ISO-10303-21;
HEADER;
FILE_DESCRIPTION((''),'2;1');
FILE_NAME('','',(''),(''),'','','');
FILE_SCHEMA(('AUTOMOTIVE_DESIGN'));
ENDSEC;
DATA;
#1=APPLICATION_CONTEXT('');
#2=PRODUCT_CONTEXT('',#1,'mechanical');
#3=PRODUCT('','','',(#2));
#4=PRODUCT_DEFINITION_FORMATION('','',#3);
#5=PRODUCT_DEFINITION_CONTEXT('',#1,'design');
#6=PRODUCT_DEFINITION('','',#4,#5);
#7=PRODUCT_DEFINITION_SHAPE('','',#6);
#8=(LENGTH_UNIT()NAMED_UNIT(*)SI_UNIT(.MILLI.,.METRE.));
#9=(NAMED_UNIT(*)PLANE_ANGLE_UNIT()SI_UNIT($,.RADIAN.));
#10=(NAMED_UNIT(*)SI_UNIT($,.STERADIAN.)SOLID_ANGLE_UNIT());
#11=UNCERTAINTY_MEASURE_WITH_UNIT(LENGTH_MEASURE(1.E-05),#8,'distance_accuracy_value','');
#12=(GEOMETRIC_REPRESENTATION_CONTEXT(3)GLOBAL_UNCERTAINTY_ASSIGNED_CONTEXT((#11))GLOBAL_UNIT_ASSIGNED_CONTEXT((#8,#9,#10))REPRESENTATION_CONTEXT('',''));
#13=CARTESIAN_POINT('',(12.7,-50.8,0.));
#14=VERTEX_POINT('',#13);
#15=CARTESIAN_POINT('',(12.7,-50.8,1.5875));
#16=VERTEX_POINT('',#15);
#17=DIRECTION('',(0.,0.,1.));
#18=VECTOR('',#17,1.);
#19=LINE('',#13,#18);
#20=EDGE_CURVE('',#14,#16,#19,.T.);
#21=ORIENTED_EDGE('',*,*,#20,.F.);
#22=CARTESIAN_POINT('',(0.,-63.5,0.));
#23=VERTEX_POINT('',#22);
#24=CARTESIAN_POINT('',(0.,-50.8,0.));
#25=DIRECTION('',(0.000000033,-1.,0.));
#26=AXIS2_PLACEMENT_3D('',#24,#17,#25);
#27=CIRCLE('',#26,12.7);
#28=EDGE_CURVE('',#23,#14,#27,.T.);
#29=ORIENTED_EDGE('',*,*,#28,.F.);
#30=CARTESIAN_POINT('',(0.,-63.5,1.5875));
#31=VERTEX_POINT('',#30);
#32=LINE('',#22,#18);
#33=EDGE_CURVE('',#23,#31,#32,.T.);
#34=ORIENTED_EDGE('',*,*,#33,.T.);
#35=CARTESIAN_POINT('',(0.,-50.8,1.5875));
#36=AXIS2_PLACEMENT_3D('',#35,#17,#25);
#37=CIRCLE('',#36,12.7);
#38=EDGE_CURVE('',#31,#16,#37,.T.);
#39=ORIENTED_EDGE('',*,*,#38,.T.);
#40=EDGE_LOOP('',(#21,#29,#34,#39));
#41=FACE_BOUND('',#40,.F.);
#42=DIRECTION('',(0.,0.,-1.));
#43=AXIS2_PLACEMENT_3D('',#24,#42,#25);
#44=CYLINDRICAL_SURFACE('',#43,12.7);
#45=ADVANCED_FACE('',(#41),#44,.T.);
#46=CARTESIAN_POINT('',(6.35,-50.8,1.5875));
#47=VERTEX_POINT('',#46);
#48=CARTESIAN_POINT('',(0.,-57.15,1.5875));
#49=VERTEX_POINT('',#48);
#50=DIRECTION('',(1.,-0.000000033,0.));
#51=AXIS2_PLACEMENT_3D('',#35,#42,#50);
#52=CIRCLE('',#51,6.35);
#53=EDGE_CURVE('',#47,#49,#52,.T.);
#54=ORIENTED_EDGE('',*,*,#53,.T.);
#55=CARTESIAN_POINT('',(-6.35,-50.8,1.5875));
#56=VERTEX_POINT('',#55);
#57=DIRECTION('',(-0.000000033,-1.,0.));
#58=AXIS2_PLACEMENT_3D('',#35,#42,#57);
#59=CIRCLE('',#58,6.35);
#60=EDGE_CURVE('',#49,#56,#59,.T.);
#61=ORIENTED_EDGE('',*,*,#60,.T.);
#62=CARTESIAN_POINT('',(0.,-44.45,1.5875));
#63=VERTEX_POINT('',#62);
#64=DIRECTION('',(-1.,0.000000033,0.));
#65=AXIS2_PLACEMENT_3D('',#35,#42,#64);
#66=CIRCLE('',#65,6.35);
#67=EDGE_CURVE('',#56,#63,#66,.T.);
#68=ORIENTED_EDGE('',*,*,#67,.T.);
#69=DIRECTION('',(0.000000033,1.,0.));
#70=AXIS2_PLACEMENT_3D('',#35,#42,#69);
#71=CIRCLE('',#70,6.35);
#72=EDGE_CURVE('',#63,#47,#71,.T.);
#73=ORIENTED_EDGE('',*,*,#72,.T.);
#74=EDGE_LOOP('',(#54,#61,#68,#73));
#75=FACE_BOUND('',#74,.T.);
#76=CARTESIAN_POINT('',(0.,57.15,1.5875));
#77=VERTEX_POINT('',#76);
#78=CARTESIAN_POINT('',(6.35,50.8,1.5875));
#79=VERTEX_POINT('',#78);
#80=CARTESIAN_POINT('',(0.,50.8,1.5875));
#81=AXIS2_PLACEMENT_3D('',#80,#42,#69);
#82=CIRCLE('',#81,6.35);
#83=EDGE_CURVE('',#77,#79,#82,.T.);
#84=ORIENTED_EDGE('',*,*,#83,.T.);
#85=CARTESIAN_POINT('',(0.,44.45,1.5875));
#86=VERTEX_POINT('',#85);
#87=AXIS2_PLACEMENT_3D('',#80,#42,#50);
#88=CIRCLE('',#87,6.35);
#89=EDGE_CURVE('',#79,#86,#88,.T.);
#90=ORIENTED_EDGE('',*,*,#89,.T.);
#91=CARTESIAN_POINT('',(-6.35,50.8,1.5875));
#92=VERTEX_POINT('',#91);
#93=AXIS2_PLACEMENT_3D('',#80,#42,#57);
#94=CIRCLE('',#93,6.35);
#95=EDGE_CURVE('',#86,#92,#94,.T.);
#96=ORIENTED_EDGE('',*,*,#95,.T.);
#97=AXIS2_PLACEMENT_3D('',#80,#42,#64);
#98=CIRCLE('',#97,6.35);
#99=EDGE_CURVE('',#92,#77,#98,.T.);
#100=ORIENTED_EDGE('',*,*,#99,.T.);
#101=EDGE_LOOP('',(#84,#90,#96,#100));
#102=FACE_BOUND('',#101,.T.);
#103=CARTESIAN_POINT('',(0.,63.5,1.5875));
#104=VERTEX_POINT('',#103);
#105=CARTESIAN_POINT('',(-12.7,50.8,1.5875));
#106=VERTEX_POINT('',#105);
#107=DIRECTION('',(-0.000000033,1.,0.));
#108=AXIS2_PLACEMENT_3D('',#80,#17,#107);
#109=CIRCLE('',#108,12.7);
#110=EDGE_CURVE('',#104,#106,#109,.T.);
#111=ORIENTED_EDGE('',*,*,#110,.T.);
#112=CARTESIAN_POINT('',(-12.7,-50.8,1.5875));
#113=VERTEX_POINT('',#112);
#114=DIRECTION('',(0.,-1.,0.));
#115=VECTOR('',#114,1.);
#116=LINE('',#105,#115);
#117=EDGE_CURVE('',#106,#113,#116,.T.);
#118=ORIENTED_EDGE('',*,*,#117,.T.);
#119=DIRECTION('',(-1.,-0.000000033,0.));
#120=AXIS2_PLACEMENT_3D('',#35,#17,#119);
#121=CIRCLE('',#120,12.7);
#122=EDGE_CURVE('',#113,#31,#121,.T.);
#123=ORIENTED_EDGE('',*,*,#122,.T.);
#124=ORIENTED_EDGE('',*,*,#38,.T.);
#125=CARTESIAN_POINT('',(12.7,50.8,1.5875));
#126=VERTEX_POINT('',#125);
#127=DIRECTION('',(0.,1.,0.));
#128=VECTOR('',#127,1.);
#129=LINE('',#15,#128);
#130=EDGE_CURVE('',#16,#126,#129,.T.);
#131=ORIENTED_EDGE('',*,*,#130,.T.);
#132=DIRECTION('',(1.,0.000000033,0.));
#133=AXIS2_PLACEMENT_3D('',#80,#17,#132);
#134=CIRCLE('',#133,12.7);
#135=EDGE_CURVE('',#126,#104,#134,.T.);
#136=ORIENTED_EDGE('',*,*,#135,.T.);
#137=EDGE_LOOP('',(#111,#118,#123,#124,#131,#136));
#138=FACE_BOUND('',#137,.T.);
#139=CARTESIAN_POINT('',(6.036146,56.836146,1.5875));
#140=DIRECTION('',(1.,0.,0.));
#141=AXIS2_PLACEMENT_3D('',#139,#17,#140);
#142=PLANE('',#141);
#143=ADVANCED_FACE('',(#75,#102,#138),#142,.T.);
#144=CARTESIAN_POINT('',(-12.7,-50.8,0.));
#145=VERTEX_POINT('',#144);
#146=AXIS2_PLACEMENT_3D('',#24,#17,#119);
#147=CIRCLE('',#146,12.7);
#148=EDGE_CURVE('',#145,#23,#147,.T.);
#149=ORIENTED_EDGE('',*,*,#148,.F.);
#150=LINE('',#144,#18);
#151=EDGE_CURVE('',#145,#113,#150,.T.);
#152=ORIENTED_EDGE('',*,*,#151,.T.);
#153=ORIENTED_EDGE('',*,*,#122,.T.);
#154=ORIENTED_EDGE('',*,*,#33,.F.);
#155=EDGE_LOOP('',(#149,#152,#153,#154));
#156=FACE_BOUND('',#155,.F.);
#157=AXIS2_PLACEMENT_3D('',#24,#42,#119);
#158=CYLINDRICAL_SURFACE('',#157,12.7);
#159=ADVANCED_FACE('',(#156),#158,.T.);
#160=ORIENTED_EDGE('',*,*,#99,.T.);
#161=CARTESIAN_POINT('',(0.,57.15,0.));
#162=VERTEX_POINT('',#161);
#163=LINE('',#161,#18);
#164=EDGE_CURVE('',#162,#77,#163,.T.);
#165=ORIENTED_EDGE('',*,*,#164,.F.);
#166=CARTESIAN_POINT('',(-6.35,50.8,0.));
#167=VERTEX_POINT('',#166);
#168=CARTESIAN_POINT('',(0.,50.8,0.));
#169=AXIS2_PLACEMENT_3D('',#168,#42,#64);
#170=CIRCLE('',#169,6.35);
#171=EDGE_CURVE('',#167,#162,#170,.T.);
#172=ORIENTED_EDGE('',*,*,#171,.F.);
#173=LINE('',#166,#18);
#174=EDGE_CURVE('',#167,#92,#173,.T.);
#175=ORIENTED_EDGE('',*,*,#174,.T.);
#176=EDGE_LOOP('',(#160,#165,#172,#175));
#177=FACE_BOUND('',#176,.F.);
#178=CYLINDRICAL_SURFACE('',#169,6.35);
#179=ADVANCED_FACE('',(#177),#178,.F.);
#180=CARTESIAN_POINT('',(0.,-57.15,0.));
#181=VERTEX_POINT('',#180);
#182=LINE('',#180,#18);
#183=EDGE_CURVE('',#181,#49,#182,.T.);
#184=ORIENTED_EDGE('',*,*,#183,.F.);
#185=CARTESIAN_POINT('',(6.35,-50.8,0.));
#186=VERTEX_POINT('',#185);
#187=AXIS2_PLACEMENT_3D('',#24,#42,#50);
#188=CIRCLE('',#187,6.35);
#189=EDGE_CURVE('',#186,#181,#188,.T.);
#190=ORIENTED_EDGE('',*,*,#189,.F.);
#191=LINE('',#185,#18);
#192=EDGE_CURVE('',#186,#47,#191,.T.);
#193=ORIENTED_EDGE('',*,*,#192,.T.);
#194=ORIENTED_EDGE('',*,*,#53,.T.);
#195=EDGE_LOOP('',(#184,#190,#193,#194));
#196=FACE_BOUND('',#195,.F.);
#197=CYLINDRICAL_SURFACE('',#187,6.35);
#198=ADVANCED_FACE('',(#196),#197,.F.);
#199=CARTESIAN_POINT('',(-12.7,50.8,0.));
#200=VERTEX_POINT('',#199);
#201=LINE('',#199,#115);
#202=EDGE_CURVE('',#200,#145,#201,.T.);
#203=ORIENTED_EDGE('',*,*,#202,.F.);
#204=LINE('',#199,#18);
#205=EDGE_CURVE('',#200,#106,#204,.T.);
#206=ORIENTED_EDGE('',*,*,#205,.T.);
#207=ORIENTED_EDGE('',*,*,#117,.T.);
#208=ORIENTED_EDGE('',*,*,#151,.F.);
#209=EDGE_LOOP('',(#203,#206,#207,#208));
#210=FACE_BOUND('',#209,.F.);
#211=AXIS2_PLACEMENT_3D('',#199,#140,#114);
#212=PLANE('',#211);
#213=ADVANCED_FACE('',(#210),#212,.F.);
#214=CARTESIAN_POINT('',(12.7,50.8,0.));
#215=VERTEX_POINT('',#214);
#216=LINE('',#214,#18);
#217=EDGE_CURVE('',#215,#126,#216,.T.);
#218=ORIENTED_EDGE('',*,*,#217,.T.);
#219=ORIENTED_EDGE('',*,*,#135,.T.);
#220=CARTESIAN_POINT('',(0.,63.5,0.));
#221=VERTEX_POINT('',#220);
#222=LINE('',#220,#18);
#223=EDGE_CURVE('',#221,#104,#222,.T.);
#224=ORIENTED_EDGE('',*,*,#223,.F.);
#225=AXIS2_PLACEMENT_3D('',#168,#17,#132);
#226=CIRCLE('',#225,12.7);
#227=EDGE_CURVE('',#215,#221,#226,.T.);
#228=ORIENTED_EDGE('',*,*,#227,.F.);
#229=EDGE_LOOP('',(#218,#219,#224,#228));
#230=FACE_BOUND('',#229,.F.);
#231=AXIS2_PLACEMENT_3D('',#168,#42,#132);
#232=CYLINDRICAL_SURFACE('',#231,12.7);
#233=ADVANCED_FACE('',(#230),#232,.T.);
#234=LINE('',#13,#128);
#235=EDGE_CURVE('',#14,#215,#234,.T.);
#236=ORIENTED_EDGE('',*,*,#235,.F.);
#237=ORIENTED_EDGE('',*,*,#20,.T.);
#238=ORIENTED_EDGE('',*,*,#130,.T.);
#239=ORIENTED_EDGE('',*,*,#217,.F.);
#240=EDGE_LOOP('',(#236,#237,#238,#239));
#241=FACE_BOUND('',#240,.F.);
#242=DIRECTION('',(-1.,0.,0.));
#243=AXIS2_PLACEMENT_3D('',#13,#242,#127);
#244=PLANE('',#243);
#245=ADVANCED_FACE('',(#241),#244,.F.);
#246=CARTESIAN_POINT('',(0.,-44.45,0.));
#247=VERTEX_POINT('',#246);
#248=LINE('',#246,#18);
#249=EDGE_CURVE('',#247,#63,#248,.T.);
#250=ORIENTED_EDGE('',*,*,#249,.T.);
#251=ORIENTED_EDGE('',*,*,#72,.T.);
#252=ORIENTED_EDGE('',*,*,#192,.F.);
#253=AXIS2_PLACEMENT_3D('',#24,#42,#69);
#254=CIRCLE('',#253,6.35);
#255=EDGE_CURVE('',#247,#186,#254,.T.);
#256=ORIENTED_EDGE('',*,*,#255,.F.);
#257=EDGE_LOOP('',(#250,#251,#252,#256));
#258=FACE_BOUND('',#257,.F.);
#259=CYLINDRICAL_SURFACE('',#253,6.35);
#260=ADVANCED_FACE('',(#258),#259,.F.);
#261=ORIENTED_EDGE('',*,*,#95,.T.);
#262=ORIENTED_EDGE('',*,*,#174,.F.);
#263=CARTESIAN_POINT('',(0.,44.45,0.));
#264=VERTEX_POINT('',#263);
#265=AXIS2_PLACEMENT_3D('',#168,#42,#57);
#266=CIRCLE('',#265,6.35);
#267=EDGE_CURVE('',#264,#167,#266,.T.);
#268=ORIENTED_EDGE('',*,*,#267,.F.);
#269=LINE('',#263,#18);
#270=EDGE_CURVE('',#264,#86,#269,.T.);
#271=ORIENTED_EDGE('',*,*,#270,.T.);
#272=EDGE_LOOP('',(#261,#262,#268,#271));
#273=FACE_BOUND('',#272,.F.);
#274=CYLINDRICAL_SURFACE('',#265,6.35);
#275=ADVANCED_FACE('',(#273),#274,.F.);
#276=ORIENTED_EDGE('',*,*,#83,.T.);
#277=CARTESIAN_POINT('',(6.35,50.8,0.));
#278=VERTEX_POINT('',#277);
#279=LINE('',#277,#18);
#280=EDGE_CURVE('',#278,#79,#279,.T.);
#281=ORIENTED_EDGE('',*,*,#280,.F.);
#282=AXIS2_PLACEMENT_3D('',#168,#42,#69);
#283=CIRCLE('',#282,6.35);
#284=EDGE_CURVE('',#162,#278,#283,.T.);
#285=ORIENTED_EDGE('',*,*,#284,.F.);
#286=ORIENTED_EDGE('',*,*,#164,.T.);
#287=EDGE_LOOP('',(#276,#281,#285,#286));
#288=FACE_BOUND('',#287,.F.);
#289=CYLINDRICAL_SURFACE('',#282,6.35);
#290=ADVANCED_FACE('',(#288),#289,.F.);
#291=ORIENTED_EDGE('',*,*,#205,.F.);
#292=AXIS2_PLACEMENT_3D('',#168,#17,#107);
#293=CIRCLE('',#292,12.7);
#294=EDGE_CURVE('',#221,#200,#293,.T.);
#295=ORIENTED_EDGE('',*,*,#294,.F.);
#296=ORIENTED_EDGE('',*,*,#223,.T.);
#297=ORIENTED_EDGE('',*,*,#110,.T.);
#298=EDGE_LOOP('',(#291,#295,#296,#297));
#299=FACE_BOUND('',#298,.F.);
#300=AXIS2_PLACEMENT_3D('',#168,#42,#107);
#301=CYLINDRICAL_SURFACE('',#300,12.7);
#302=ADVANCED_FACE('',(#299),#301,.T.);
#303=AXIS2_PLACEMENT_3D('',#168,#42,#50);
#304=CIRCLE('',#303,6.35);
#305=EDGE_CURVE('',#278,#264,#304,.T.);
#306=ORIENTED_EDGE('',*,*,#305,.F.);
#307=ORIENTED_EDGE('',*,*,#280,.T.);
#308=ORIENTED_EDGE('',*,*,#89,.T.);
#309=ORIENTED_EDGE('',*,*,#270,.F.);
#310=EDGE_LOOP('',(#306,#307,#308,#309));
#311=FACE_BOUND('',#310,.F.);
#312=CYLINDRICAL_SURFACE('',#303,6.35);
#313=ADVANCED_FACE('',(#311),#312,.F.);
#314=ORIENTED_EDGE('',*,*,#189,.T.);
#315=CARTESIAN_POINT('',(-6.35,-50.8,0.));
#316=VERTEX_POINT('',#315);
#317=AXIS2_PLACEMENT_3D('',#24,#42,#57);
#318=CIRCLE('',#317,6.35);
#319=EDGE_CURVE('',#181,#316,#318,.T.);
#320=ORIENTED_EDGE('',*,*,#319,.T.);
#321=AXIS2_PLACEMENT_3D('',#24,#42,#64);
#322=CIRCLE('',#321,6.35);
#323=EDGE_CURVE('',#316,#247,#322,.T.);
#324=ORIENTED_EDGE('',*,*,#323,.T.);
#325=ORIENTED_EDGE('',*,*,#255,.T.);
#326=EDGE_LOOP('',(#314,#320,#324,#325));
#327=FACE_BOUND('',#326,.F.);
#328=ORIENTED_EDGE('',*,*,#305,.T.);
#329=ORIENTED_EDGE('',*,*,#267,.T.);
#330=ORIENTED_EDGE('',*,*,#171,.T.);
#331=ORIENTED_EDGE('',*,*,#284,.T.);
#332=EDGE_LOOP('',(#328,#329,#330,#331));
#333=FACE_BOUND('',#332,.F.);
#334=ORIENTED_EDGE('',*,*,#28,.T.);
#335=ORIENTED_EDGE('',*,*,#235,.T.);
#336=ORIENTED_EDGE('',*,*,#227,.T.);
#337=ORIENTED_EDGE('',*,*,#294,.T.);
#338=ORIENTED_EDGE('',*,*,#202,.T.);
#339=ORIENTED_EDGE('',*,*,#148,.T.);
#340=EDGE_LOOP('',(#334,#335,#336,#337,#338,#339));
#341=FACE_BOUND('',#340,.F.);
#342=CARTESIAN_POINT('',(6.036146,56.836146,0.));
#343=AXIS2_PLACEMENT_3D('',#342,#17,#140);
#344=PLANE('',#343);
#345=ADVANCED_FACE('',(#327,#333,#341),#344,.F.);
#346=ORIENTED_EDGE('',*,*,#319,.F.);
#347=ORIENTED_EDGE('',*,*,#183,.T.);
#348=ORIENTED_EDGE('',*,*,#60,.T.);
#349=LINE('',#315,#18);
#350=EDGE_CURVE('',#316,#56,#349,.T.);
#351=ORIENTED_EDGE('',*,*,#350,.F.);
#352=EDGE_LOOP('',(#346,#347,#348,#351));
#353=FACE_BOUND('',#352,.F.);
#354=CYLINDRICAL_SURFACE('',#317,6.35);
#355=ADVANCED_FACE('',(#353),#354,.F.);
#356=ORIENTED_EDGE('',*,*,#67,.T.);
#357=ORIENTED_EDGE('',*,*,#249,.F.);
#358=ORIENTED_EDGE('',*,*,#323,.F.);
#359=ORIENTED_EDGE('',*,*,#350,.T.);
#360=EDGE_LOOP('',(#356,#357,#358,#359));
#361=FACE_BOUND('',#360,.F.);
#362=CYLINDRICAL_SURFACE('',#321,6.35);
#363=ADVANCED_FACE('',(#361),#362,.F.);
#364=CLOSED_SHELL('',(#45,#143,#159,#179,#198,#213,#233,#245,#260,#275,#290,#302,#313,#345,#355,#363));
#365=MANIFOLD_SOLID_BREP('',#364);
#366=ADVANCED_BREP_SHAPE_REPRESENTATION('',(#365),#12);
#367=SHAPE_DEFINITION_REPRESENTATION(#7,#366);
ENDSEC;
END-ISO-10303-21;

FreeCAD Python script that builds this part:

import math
import FreeCAD as App
import Part
import Sketcher
from FreeCAD import Vector
Q = App.Units.Quantity

doc = App.newDocument("Part")
body = doc.addObject("PartDesign::Body", "Body")

# Sketch on XY plane
sketch1 = body.newObject("Sketcher::SketchObject", "Sketch")
sketch1.AttachmentSupport = (doc.getObject("XY_Plane"), [""])
sketch1.MapMode = "FlatFace"
sketch1.addGeometry(Part.ArcOfCircle(Part.Circle(Vector(0, -51, 0), Vector(0, 0, 1), 13), math.radians(-90), math.radians(0)), False)
sketch1.addGeometry(Part.LineSegment(Vector(13, -51, 0), Vector(13, 51, 0)), False)
sketch1.addGeometry(Part.ArcOfCircle(Part.Circle(Vector(0, 51, 0), Vector(0, 0, 1), 13), math.radians(0), math.radians(90)), False)
sketch1.addGeometry(Part.ArcOfCircle(Part.Circle(Vector(0, 51, 0), Vector(0, 0, 1), 13), math.radians(90), math.radians(180)), False)
sketch1.addGeometry(Part.LineSegment(Vector(-13, 51, 0), Vector(-13, -51, 0)), False)
sketch1.addGeometry(Part.ArcOfCircle(Part.Circle(Vector(0, -51, 0), Vector(0, 0, 1), 13), math.radians(-180), math.radians(-90)), False)
sketch1.addGeometry(Part.ArcOfCircle(Part.Circle(Vector(0, 51, 0), Vector(0, 0, 1), 6), math.radians(0), math.radians(90)), False)
sketch1.addGeometry(Part.ArcOfCircle(Part.Circle(Vector(0, 51, 0), Vector(0, 0, 1), 6), math.radians(-90), math.radians(0)), False)
sketch1.addGeometry(Part.ArcOfCircle(Part.Circle(Vector(0, 51, 0), Vector(0, 0, 1), 6), math.radians(-180), math.radians(-90)), False)
sketch1.addGeometry(Part.ArcOfCircle(Part.Circle(Vector(0, 51, 0), Vector(0, 0, 1), 6), math.radians(90), math.radians(180)), False)
sketch1.addGeometry(Part.ArcOfCircle(Part.Circle(Vector(0, -51, 0), Vector(0, 0, 1), 6), math.radians(0), math.radians(90)), False)
sketch1.addGeometry(Part.ArcOfCircle(Part.Circle(Vector(0, -51, 0), Vector(0, 0, 1), 6), math.radians(-90), math.radians(0)), False)
sketch1.addGeometry(Part.ArcOfCircle(Part.Circle(Vector(0, -51, 0), Vector(0, 0, 1), 6), math.radians(-180), math.radians(-90)), False)
sketch1.addGeometry(Part.ArcOfCircle(Part.Circle(Vector(0, -51, 0), Vector(0, 0, 1), 6), math.radians(90), math.radians(180)), False)
sketch1.addConstraint(Sketcher.Constraint("Tangent", 0, 2, 1, 1))
sketch1.addConstraint(Sketcher.Constraint("Tangent", 1, 2, 2, 1))
sketch1.addConstraint(Sketcher.Constraint("Tangent", 2, 2, 3, 1))
sketch1.addConstraint(Sketcher.Constraint("Tangent", 3, 2, 4, 1))
sketch1.addConstraint(Sketcher.Constraint("Tangent", 4, 2, 5, 1))
sketch1.addConstraint(Sketcher.Constraint("Tangent", 5, 2, 0, 1))
sketch1.addConstraint(Sketcher.Constraint("Tangent", 6, 1, 7, 2))
sketch1.addConstraint(Sketcher.Constraint("Tangent", 7, 1, 8, 2))
sketch1.addConstraint(Sketcher.Constraint("Tangent", 8, 1, 9, 2))
sketch1.addConstraint(Sketcher.Constraint("Tangent", 9, 1, 6, 2))
sketch1.addConstraint(Sketcher.Constraint("Tangent", 10, 1, 11, 2))
sketch1.addConstraint(Sketcher.Constraint("Tangent", 11, 1, 12, 2))
sketch1.addConstraint(Sketcher.Constraint("Tangent", 12, 1, 13, 2))
sketch1.addConstraint(Sketcher.Constraint("Tangent", 13, 1, 10, 2))
sketch1.addConstraint(Sketcher.Constraint("Vertical", 1))
sketch1.addConstraint(Sketcher.Constraint("Vertical", 4))
sketch1.addConstraint(Sketcher.Constraint("Coincident", 6, 3, 2, 3))
sketch1.addConstraint(Sketcher.Constraint("Coincident", 10, 3, 0, 3))
sketch1.addConstraint(Sketcher.Constraint("Equal", 0, 2))
sketch1.addConstraint(Sketcher.Constraint("Equal", 2, 3))
sketch1.addConstraint(Sketcher.Constraint("Equal", 6, 7))
sketch1.addConstraint(Sketcher.Constraint("Equal", 9, 10))
sketch1.addConstraint(Sketcher.Constraint("Equal", 10, 11))
sketch1.addConstraint(Sketcher.Constraint("Symmetric", 0, 3, 2, 3, -1, 1))
sketch1.addConstraint(Sketcher.Constraint("PointOnObject", 2, 2, -2))
sketch1.addConstraint(Sketcher.Constraint("PointOnObject", 5, 2, -2))
sketch1.addConstraint(Sketcher.Constraint("PointOnObject", 7, 1, -2))
sketch1.addConstraint(Sketcher.Constraint("PointOnObject", 9, 1, -2))
sketch1.addConstraint(Sketcher.Constraint("PointOnObject", 11, 1, -2))
sketch1.addConstraint(Sketcher.Constraint("PointOnObject", 13, 1, -2))
sketch1.addConstraint(Sketcher.Constraint("Horizontal", 3, 2, 6, 1))
sketch1.addConstraint(Sketcher.Constraint("Horizontal", 6, 1, 8, 1))
sketch1.addConstraint(Sketcher.Constraint("Horizontal", 4, 2, 10, 1))
sketch1.addConstraint(Sketcher.Constraint("Horizontal", 10, 1, 12, 1))
sketch1.addConstraint(Sketcher.Constraint("Radius", 0, Q("0.5 in")))
sketch1.addConstraint(Sketcher.Constraint("DistanceY", 1, 1, 1, 2, Q("4 in")))
sketch1.addConstraint(Sketcher.Constraint("Radius", 6, Q("0.25 in")))
pad1 = body.newObject("PartDesign::Pad", "Pad")
pad1.Profile = sketch1
pad1.Length = Q("0.0625 in")

doc.recompute()
